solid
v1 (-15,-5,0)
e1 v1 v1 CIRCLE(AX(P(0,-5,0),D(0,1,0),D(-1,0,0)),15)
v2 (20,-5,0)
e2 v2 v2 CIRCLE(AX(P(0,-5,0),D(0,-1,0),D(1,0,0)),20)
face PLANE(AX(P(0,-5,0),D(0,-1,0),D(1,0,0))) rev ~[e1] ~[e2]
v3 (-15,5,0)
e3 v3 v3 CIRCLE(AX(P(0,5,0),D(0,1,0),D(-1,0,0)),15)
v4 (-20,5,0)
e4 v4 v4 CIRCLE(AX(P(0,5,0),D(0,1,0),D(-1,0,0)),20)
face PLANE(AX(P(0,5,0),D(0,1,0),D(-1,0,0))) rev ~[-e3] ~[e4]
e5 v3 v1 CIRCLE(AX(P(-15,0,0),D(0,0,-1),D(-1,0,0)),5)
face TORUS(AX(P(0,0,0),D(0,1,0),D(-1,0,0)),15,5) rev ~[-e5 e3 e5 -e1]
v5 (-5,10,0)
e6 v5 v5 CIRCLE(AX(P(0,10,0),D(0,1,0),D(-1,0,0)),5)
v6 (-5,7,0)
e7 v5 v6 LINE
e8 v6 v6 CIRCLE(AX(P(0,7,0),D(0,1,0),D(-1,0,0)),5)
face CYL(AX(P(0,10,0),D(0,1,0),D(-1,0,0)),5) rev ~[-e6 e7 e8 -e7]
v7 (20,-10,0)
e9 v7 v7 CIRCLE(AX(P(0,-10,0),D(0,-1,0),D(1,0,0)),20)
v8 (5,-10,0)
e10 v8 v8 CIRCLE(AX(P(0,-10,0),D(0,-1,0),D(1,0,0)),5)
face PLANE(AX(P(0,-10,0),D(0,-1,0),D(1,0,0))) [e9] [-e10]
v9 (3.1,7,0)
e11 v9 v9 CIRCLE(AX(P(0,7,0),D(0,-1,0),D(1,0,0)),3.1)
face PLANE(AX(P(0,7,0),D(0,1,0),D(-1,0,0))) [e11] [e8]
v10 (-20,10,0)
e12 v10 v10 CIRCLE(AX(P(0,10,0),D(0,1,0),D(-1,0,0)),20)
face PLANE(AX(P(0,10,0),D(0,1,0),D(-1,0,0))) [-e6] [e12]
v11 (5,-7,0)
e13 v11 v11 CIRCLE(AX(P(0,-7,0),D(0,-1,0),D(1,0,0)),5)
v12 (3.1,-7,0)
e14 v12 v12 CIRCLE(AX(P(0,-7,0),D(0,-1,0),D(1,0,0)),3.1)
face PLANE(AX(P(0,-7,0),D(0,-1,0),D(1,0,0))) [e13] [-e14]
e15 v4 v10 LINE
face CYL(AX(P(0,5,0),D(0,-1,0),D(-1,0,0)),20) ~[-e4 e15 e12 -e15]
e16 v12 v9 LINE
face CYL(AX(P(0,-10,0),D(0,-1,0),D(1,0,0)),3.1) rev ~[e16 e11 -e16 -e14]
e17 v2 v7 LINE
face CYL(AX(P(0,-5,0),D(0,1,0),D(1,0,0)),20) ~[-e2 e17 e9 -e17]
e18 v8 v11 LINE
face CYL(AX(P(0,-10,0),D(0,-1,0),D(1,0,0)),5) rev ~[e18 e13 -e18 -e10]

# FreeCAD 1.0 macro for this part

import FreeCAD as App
import Part
import Sketcher

V = App.Vector

doc = App.newDocument("Part")
params = doc.addObject("Spreadsheet::Sheet", "Params")
for row, (alias, value) in enumerate([
    ("sketch1_diameter", "30 mm"),
    ("pad1_length", "5 mm"),
    ("sketch2_diameter", "30 mm"),
    ("pad2_length", "5 mm"),
    ("sketch3_diameter", "10 mm"),
    ("sketch4_diameter", "30 mm"),
    ("sketch5_diameter", "40 mm"),
    ("pad3_length", "5 mm"),
    ("sketch6_diameter", "40 mm"),
    ("pad4_length", "5 mm"),
    ("sketch7_diameter", "6.2 mm"),
    ("pocket1_length", "25 mm"),
    ("sketch8_diameter", "10 mm"),
    ("sketch8_diameter2", "6.2 mm"),
    ("pocket2_length", "3 mm"),
    ("sketch9_diameter", "10 mm"),
    ("sketch9_diameter2", "6.2 mm"),
    ("pocket3_length", "3 mm"),
], start=1):
    params.set(f"A{row}", alias)
    params.set(f"B{row}", "=" + value)
    params.setAlias(f"B{row}", alias)

body = doc.addObject("PartDesign::Body", "Body")

# Sketch on XZ plane
sketch1 = body.newObject("Sketcher::SketchObject", "Sketch")
sketch1.AttachmentSupport = (doc.getObject("XZ_Plane"), [""])
sketch1.MapMode = "FlatFace"
sketch1.addGeometry(Part.Circle(V(0, 0, 0), V(0, 0, 1), 15), False)
sketch1.addConstraint(Sketcher.Constraint("Coincident", 0, 3, -1, 1))
sketch1.addConstraint(Sketcher.Constraint("Diameter", 0, 30.0))
sketch1.setExpression("Constraints[1]", "Params.sketch1_diameter")
pad1 = body.newObject("PartDesign::Pad", "Pad")
pad1.Profile = sketch1
pad1.setExpression("Length", "Params.pad1_length")

# Sketch on XZ plane
sketch2 = body.newObject("Sketcher::SketchObject", "Sketch001")
sketch2.AttachmentSupport = (doc.getObject("XZ_Plane"), [""])
sketch2.MapMode = "FlatFace"
sketch2.addGeometry(Part.Circle(V(0, 0, 0), V(0, 0, 1), 15), False)
sketch2.addConstraint(Sketcher.Constraint("Coincident", 0, 3, -1, 1))
sketch2.addConstraint(Sketcher.Constraint("Diameter", 0, 30.0))
sketch2.setExpression("Constraints[1]", "Params.sketch2_diameter")
pad2 = body.newObject("PartDesign::Pad", "Pad001")
pad2.Profile = sketch2
pad2.setExpression("Length", "Params.pad2_length")
pad2.Reversed = True

# Sketch on YZ plane
sketch3 = body.newObject("Sketcher::SketchObject", "Sketch002")
sketch3.AttachmentSupport = (doc.getObject("YZ_Plane"), [""])
sketch3.MapMode = "FlatFace"
sketch3.addGeometry(Part.Circle(V(0, -15, 0), V(0, 0, 1), 5), False)
sketch3.addConstraint(Sketcher.Constraint("PointOnObject", 0, 3, -2))
sketch3.addConstraint(Sketcher.Constraint("Diameter", 0, 10.0))
sketch3.addConstraint(Sketcher.Constraint("DistanceY", 0, 3, -1, 1, 15.0))
sketch3.setExpression("Constraints[1]", "Params.sketch3_diameter")

# Sketch on XZ plane
sketch4 = body.newObject("Sketcher::SketchObject", "Sketch003")
sketch4.AttachmentSupport = (doc.getObject("XZ_Plane"), [""])
sketch4.MapMode = "FlatFace"
sketch4.addGeometry(Part.Circle(V(0, 0, 0), V(0, 0, 1), 15), False)
sketch4.addConstraint(Sketcher.Constraint("Coincident", 0, 3, -1, 1))
sketch4.addConstraint(Sketcher.Constraint("Diameter", 0, 30.0))
sketch4.setExpression("Constraints[1]", "Params.sketch4_diameter")
doc.recompute()

subtractivepipe = body.newObject("PartDesign::SubtractivePipe", "SubtractivePipe")
subtractivepipe.Profile = sketch3
subtractivepipe.Spine = (sketch4, ["Edge1"])

# Sketch on XZ plane
sketch5 = body.newObject("Sketcher::SketchObject", "Sketch004")
sketch5.AttachmentSupport = (doc.getObject("XZ_Plane"), [""])
sketch5.MapMode = "FlatFace"
sketch5.AttachmentOffset = App.Placement(V(0, 0, 5), App.Rotation())
sketch5.addGeometry(Part.Circle(V(0, 0, 0), V(0, 0, 1), 20), False)
sketch5.addConstraint(Sketcher.Constraint("Coincident", 0, 3, -1, 1))
sketch5.addConstraint(Sketcher.Constraint("Diameter", 0, 40.0))
sketch5.setExpression("Constraints[1]", "Params.sketch5_diameter")
pad3 = body.newObject("PartDesign::Pad", "Pad002")
pad3.Profile = sketch5
pad3.setExpression("Length", "Params.pad3_length")

# Sketch on XZ plane
sketch6 = body.newObject("Sketcher::SketchObject", "Sketch005")
sketch6.AttachmentSupport = (doc.getObject("XZ_Plane"), [""])
sketch6.MapMode = "FlatFace"
sketch6.AttachmentOffset = App.Placement(V(0, 0, -5), App.Rotation())
sketch6.addGeometry(Part.Circle(V(0, 0, 0), V(0, 0, 1), 20), False)
sketch6.addConstraint(Sketcher.Constraint("Coincident", 0, 3, -1, 1))
sketch6.addConstraint(Sketcher.Constraint("Diameter", 0, 40.0))
sketch6.setExpression("Constraints[1]", "Params.sketch6_diameter")
pad4 = body.newObject("PartDesign::Pad", "Pad003")
pad4.Profile = sketch6
pad4.setExpression("Length", "Params.pad4_length")
pad4.Reversed = True

# Sketch on XZ plane
sketch7 = body.newObject("Sketcher::SketchObject", "Sketch006")
sketch7.AttachmentSupport = (doc.getObject("XZ_Plane"), [""])
sketch7.MapMode = "FlatFace"
sketch7.AttachmentOffset = App.Placement(V(0, 0, 10), App.Rotation())
sketch7.addGeometry(Part.Circle(V(0, 0, 0), V(0, 0, 1), 3.1), False)
sketch7.addConstraint(Sketcher.Constraint("Coincident", 0, 3, -1, 1))
sketch7.addConstraint(Sketcher.Constraint("Diameter", 0, 6.2))
sketch7.setExpression("Constraints[1]", "Params.sketch7_diameter")
pocket1 = body.newObject("PartDesign::Pocket", "Pocket")
pocket1.Profile = sketch7
pocket1.setExpression("Length", "Params.pocket1_length")

# Sketch on XZ plane
sketch8 = body.newObject("Sketcher::SketchObject", "Sketch007")
sketch8.AttachmentSupport = (doc.getObject("XZ_Plane"), [""])
sketch8.MapMode = "FlatFace"
sketch8.AttachmentOffset = App.Placement(V(0, 0, 10), App.Rotation())
sketch8.addGeometry(Part.Circle(V(0, 0, 0), V(0, 0, 1), 5), False)
sketch8.addGeometry(Part.Circle(V(0, 0, 0), V(0, 0, 1), 3.1), False)
sketch8.addConstraint(Sketcher.Constraint("Coincident", 0, 3, -1, 1))
sketch8.addConstraint(Sketcher.Constraint("Coincident", 1, 3, -1, 1))
sketch8.addConstraint(Sketcher.Constraint("Diameter", 0, 10.0))
sketch8.addConstraint(Sketcher.Constraint("Diameter", 1, 6.2))
sketch8.setExpression("Constraints[2]", "Params.sketch8_diameter")
sketch8.setExpression("Constraints[3]", "Params.sketch8_diameter2")
pocket2 = body.newObject("PartDesign::Pocket", "Pocket001")
pocket2.Profile = sketch8
pocket2.setExpression("Length", "Params.pocket2_length")

# Sketch on XZ plane
sketch9 = body.newObject("Sketcher::SketchObject", "Sketch008")
sketch9.AttachmentSupport = (doc.getObject("XZ_Plane"), [""])
sketch9.MapMode = "FlatFace"
sketch9.AttachmentOffset = App.Placement(V(0, 0, -10), App.Rotation())
sketch9.addGeometry(Part.Circle(V(0, 0, 0), V(0, 0, 1), 5), False)
sketch9.addGeometry(Part.Circle(V(0, 0, 0), V(0, 0, 1), 3.1), False)
sketch9.addConstraint(Sketcher.Constraint("Coincident", 0, 3, -1, 1))
sketch9.addConstraint(Sketcher.Constraint("Coincident", 1, 3, -1, 1))
sketch9.addConstraint(Sketcher.Constraint("Diameter", 0, 10.0))
sketch9.addConstraint(Sketcher.Constraint("Diameter", 1, 6.2))
sketch9.setExpression("Constraints[2]", "Params.sketch9_diameter")
sketch9.setExpression("Constraints[3]", "Params.sketch9_diameter2")
pocket3 = body.newObject("PartDesign::Pocket", "Pocket002")
pocket3.Profile = sketch9
pocket3.setExpression("Length", "Params.pocket3_length")
pocket3.Reversed = True

doc.recompute()
